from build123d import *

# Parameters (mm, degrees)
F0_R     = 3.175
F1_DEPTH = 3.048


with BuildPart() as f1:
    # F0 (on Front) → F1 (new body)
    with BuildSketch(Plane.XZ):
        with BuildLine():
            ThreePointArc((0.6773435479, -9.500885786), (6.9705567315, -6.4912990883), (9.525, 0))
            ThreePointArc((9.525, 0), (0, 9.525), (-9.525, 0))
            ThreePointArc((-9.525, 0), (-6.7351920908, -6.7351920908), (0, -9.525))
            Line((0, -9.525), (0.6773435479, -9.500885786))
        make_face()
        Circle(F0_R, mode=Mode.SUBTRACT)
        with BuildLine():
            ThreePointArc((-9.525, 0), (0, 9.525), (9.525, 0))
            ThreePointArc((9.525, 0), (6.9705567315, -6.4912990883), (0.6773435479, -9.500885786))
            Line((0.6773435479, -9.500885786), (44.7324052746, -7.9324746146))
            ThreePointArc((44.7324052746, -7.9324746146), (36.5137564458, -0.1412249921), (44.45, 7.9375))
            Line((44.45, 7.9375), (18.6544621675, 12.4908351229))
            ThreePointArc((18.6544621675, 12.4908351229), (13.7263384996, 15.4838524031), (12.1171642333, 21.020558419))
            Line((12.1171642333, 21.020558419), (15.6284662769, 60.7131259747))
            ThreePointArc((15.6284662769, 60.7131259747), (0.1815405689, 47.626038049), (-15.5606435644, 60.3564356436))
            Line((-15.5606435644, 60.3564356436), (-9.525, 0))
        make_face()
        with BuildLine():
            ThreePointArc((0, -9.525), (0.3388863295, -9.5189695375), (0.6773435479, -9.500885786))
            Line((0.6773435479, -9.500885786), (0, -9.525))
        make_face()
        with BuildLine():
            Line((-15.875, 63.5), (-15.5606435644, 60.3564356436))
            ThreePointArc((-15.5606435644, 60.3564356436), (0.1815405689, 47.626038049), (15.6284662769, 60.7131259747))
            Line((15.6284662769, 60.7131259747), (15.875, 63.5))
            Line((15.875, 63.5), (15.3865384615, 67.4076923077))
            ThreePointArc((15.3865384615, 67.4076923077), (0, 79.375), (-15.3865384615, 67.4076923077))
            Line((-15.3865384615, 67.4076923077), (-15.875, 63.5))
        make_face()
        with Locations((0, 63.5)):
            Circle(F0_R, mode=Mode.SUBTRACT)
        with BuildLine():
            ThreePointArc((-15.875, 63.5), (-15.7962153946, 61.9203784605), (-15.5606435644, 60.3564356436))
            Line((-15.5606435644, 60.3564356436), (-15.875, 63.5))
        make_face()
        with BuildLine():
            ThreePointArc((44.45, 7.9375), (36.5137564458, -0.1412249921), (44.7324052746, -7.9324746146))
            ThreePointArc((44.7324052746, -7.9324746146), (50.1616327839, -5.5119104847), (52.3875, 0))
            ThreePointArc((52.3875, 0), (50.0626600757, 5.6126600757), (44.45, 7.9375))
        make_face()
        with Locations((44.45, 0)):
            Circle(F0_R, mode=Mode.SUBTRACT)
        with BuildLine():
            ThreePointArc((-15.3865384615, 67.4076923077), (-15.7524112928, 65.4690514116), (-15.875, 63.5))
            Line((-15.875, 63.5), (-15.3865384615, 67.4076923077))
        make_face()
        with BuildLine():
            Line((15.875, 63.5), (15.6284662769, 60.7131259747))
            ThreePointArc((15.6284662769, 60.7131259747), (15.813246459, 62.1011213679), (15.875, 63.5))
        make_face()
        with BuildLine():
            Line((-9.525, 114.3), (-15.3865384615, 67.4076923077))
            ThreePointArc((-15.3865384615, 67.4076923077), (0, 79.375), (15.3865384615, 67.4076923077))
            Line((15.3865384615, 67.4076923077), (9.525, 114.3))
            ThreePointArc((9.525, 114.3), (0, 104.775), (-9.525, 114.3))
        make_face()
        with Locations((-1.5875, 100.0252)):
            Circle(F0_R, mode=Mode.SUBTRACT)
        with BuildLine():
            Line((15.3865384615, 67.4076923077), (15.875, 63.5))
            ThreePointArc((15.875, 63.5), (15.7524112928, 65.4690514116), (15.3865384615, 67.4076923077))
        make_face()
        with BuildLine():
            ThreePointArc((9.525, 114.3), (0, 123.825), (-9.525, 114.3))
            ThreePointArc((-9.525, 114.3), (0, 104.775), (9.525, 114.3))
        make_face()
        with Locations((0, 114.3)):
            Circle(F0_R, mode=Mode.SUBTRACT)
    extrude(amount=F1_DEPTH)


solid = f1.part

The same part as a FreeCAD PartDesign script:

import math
import FreeCAD as App
import Part
import Sketcher

V = App.Vector
Q = App.Units.Quantity

doc = App.newDocument("Part")
body = doc.addObject("PartDesign::Body", "Body")

# Sketch on XZ plane
sketch1 = body.newObject("Sketcher::SketchObject", "Sketch")
sketch1.AttachmentSupport = (doc.getObject("XZ_Plane"), [""])
sketch1.MapMode = "FlatFace"
sketch1.addGeometry([
    Part.LineSegment(V(0.677344, -9.500886, 0), V(44.732405, -7.932475, 0)),  # 0
    Part.ArcOfCircle(Part.Circle(V(44.45, 0, 0), V(0, 0, 1), 7.9375), math.radians(-87.961065), math.radians(90)),  # 1
    Part.LineSegment(V(44.45, 7.9375, 0), V(18.654462, 12.490835, 0)),  # 2
    Part.ArcOfCircle(Part.Circle(V(20.036438, 20.32, 0), V(0, 0, 1), 7.9502), math.radians(174.944634), math.radians(259.989475)),  # 3
    Part.LineSegment(V(12.117164, 21.020558, 0), V(15.628466, 60.713126, 0)),  # 4
    Part.ArcOfCircle(Part.Circle(V(0, 63.5, 0), V(0, 0, 1), 15.875), math.radians(-10.110731), math.radians(0)),  # 5
    Part.ArcOfCircle(Part.Circle(V(0, 63.5, 0), V(0, 0, 1), 15.875), math.radians(0), math.radians(14.250033)),  # 6
    Part.LineSegment(V(15.386538, 67.407692, 0), V(9.525, 114.3, 0)),  # 7
    Part.ArcOfCircle(Part.Circle(V(0, 114.3, 0), V(0, 0, 1), 9.525), math.radians(0), math.radians(180)),  # 8
    Part.LineSegment(V(-9.525, 114.3, 0), V(-15.386538, 67.407692, 0)),  # 9
    Part.ArcOfCircle(Part.Circle(V(0, 63.5, 0), V(0, 0, 1), 15.875), math.radians(165.749967), math.radians(180)),  # 10
    Part.ArcOfCircle(Part.Circle(V(0, 63.5, 0), V(0, 0, 1), 15.875), math.radians(180), math.radians(191.421186)),  # 11
    Part.LineSegment(V(-15.560644, 60.356436, 0), V(-9.525, 0, 0)),  # 12
    Part.ArcOfCircle(Part.Circle(V(0, 0, 0), V(0, 0, 1), 9.525), math.radians(180), math.radians(270)),  # 13
    Part.ArcOfCircle(Part.Circle(V(0, 0, 0), V(0, 0, 1), 9.525), math.radians(-90), math.radians(-85.92213)),  # 14
    Part.Circle(V(0, 0, 0), V(0, 0, 1), 3.175),  # 15
    Part.Circle(V(44.45, 0, 0), V(0, 0, 1), 3.175),  # 16
    Part.Circle(V(0, 63.5, 0), V(0, 0, 1), 3.175),  # 17
    Part.Circle(V(-1.5875, 100.0252, 0), V(0, 0, 1), 3.175),  # 18
    Part.Circle(V(0, 114.3, 0), V(0, 0, 1), 3.175),  # 19
], False)
sketch1.addConstraint([
    Sketcher.Constraint("Coincident", 0, 2, 1, 1),
    Sketcher.Constraint("Coincident", 1, 2, 2, 1),
    Sketcher.Constraint("Coincident", 2, 2, 3, 2),
    Sketcher.Constraint("Coincident", 3, 1, 4, 1),
    Sketcher.Constraint("Coincident", 4, 2, 5, 1),
    Sketcher.Constraint("Coincident", 5, 2, 6, 1),
    Sketcher.Constraint("Coincident", 6, 2, 7, 1),
    Sketcher.Constraint("Coincident", 7, 2, 8, 1),
    Sketcher.Constraint("Coincident", 8, 2, 9, 1),
    Sketcher.Constraint("Coincident", 9, 2, 10, 1),
    Sketcher.Constraint("Coincident", 10, 2, 11, 1),
    Sketcher.Constraint("Coincident", 11, 2, 12, 1),
    Sketcher.Constraint("Coincident", 12, 2, 13, 1),
    Sketcher.Constraint("Coincident", 13, 2, 14, 1),
    Sketcher.Constraint("Coincident", 14, 2, 0, 1),
    Sketcher.Constraint("Coincident", 13, 3, -1, 1),
    Sketcher.Constraint("Coincident", 14, 3, -1, 1),
    Sketcher.Constraint("Coincident", 15, 3, -1, 1),
    Sketcher.Constraint("Coincident", 6, 3, 5, 3),
    Sketcher.Constraint("Coincident", 10, 3, 5, 3),
    Sketcher.Constraint("Coincident", 11, 3, 5, 3),
    Sketcher.Constraint("Coincident", 16, 3, 1, 3),
    Sketcher.Constraint("Coincident", 17, 3, 5, 3),
    Sketcher.Constraint("Coincident", 19, 3, 8, 3),
    Sketcher.Constraint("PointOnObject", 1, 3, -1),
    Sketcher.Constraint("PointOnObject", 5, 3, -2),
    Sketcher.Constraint("PointOnObject", 8, 3, -2),
    Sketcher.Constraint("PointOnObject", 12, 2, -1),
    Sketcher.Constraint("PointOnObject", 13, 2, -2),
    Sketcher.Constraint("Diameter", 15, Q("0.25 in")),
    Sketcher.Constraint("Diameter", 16, Q("0.25 in")),
    Sketcher.Constraint("Diameter", 17, Q("0.25 in")),
    Sketcher.Constraint("Diameter", 18, Q("0.25 in")),
    Sketcher.Constraint("Diameter", 19, Q("0.25 in")),
    Sketcher.Constraint("Radius", 1, Q("0.3125 in")),
    Sketcher.Constraint("Radius", 3, Q("0.313 in")),
    Sketcher.Constraint("Radius", 5, Q("0.625 in")),
    Sketcher.Constraint("Radius", 8, Q("0.375 in")),
    Sketcher.Constraint("Radius", 10, Q("0.625 in")),
    Sketcher.Constraint("Radius", 13, Q("0.375 in")),
    Sketcher.Constraint("DistanceY", 5, 3, 8, 3, Q("2 in")),
    Sketcher.Constraint("DistanceY", 5, 2, 7, 2, Q("2 in")),
    Sketcher.Constraint("DistanceY", 6, 3, 8, 2, Q("2 in")),
    Sketcher.Constraint("DistanceY", -1, 1, 3, 3, Q("0.8 in")),
    Sketcher.Constraint("DistanceY", -1, 1, 5, 3, Q("2.5 in")),
    Sketcher.Constraint("DistanceY", -1, 1, 5, 2, Q("2.5 in")),
    Sketcher.Constraint("DistanceY", -1, 1, 10, 2, Q("2.5 in")),
    Sketcher.Constraint("DistanceX", -1, 1, 1, 3, Q("1.75 in")),
    Sketcher.Constraint("DistanceX", -1, 1, 1, 2, Q("1.75 in")),
    Sketcher.Constraint("DistanceX", 18, 3, -1, 1, Q("0.0625 in")),
    Sketcher.Constraint("DistanceY", -1, 1, 18, 3, Q("3.938 in")),
    Sketcher.Constraint("Distance", 0, 44.082972),
    Sketcher.Constraint("DistanceX", -1, 1, 3, 3, 20.036438),
    Sketcher.Constraint("DistanceY", -1, 1, 3, 1, 21.020558),
    Sketcher.Constraint("DistanceX", -1, 1, 6, 2, 15.386538),
    Sketcher.Constraint("DistanceX", 9, 2, -1, 1, 15.386538),
    Sketcher.Constraint("Distance", 2, 26.194324),
    Sketcher.Constraint("Distance", 4, 39.847574),
    Sketcher.Constraint("Distance", 12, 60.657467),
    Sketcher.Constraint("DistanceX", -1, 1, 0, 2, 44.732405),
])
pad1 = body.newObject("PartDesign::Pad", "Pad")
pad1.Profile = sketch1
pad1.Length = Q("0.12 in")

doc.recompute()
